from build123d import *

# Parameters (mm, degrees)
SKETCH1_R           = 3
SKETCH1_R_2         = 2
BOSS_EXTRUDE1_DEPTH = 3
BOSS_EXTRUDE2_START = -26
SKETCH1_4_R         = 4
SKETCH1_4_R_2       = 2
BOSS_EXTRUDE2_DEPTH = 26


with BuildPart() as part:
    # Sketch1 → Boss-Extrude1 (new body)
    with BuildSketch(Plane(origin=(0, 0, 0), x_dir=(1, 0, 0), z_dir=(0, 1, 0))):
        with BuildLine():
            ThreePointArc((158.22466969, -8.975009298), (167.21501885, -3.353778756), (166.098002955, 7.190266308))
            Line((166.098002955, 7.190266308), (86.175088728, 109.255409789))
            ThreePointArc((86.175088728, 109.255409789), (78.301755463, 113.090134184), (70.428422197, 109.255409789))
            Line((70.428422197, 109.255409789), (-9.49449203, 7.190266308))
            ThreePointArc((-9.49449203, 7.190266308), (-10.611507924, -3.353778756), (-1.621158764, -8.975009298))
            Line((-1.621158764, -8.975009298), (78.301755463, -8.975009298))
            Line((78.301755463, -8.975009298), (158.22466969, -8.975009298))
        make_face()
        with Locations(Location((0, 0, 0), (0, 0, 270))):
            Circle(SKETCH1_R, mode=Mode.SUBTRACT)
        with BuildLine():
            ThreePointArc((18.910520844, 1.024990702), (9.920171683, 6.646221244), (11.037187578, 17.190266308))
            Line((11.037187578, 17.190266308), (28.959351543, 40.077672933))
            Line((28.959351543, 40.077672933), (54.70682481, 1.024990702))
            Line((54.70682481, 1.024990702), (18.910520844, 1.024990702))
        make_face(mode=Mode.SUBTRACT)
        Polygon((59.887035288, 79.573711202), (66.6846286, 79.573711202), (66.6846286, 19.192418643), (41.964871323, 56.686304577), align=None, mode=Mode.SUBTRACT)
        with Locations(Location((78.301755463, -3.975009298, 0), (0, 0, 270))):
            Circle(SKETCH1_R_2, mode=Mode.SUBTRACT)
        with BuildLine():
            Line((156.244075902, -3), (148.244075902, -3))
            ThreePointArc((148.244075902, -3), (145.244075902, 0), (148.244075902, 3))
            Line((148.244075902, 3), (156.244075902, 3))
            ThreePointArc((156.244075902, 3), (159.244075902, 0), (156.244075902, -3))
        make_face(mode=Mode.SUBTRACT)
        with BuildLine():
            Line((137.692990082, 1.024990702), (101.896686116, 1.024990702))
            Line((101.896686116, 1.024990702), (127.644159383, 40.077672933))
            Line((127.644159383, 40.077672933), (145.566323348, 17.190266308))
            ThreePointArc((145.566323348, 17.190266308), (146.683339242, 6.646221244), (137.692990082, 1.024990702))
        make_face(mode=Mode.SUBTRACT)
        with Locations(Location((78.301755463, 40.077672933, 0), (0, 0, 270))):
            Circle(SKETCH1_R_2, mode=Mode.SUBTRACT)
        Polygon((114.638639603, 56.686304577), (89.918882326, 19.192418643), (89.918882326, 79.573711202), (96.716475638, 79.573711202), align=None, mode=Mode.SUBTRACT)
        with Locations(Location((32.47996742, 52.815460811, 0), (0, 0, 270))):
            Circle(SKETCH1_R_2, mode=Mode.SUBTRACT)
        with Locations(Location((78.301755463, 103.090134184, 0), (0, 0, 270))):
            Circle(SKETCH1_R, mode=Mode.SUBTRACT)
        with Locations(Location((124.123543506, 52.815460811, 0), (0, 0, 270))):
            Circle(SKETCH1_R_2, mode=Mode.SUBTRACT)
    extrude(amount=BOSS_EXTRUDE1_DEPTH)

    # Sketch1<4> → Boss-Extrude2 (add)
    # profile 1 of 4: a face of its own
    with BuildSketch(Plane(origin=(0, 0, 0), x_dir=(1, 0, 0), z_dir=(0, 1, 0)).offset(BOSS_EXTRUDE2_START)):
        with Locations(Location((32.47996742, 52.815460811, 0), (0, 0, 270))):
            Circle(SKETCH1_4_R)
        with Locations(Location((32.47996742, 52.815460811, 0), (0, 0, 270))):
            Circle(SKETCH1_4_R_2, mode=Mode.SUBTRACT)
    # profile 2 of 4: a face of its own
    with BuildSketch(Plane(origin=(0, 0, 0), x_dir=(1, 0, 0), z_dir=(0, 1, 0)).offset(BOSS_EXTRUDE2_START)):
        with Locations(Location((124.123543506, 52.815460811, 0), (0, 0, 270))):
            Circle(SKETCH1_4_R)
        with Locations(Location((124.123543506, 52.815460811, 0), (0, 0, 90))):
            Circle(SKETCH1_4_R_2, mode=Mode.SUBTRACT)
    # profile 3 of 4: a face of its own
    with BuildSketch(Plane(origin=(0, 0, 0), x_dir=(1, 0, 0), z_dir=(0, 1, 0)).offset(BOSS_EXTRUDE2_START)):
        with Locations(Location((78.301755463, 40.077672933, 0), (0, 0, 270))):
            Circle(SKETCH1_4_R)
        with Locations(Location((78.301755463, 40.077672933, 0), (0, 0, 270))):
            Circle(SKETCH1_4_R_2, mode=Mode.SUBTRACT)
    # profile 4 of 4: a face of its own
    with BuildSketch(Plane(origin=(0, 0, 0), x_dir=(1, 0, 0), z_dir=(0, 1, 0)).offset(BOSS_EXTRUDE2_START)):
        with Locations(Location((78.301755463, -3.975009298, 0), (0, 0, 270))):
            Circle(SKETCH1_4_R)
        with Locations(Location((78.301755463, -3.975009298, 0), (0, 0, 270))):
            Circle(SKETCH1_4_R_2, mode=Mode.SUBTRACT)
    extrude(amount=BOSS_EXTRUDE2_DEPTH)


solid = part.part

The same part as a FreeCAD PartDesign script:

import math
import FreeCAD as App
import Part
import Sketcher
from FreeCAD import Vector


def add_polygon(sketch, points):
    """Adds a closed chain of lines whose ends are joined by coincident constraints."""
    first, n = sketch.GeometryCount, len(points)
    for a, b in zip(points, points[1:] + points[:1]):
        sketch.addGeometry(Part.LineSegment(App.Vector(*a, 0), App.Vector(*b, 0)), False)
    for i in range(n):
        sketch.addConstraint(Sketcher.Constraint("Coincident", first + i, 2, first + (i + 1) % n, 1))

doc = App.newDocument("Part")
body = doc.addObject("PartDesign::Body", "Body")

# Sketch on XZ plane
sketch1 = doc.addObject("Sketcher::SketchObject", "Sketch")
body.addObject(sketch1)
sketch1.AttachmentSupport = (doc.XZ_Plane, [""])
sketch1.MapMode = "FlatFace"
sketch1.addGeometry(Part.ArcOfCircle(Part.Circle(Vector(158.2, -1, 0), Vector(0, 0, 1), 10), math.radians(-38), math.radians(90)), False)  # 0
sketch1.addGeometry(Part.LineSegment(Vector(166.1, -7.2, 0), Vector(86.2, -109.3, 0)), False)  # 1
sketch1.addGeometry(Part.ArcOfCircle(Part.Circle(Vector(78.3, -103.1, 0), Vector(0, 0, 1), 10), math.radians(-142), math.radians(-38)), False)  # 2
sketch1.addGeometry(Part.LineSegment(Vector(70.4, -109.3, 0), Vector(-9.5, -7.2, 0)), False)  # 3
sketch1.addGeometry(Part.ArcOfCircle(Part.Circle(Vector(-1.6, -1, 0), Vector(0, 0, 1), 10), math.radians(90), math.radians(218)), False)  # 4
sketch1.addGeometry(Part.LineSegment(Vector(-1.6, 9, 0), Vector(158.2, 9, 0)), False)  # 5
sketch1.addGeometry(Part.Circle(Vector(0, 0, 0), Vector(0, 0, 1), 3), False)  # 6
sketch1.addGeometry(Part.LineSegment(Vector(54.7, -1, 0), Vector(18.9, -1, 0)), False)  # 7
sketch1.addGeometry(Part.ArcOfCircle(Part.Circle(Vector(18.9, -11, 0), Vector(0, 0, 1), 10), math.radians(90), math.radians(218)), False)  # 8
sketch1.addGeometry(Part.LineSegment(Vector(11, -17.2, 0), Vector(29, -40.1, 0)), False)  # 9
sketch1.addGeometry(Part.LineSegment(Vector(29, -40.1, 0), Vector(54.7, -1, 0)), False)  # 10
add_polygon(sketch1, [(42, -56.7), (59.9, -79.6), (66.7, -79.6), (66.7, -19.2)])  # lines 11-14
sketch1.addGeometry(Part.Circle(Vector(78.3, 4, 0), Vector(0, 0, 1), 2), False)  # 15
sketch1.addGeometry(Part.ArcOfCircle(Part.Circle(Vector(156.2, 0, 0), Vector(0, 0, 1), 3), math.radians(-90), math.radians(90)), False)  # 16
sketch1.addGeometry(Part.LineSegment(Vector(156.2, 3, 0), Vector(148.2, 3, 0)), False)  # 17
sketch1.addGeometry(Part.ArcOfCircle(Part.Circle(Vector(148.2, 0, 0), Vector(0, 0, 1), 3), math.radians(90), math.radians(270)), False)  # 18
sketch1.addGeometry(Part.LineSegment(Vector(148.2, -3, 0), Vector(156.2, -3, 0)), False)  # 19
sketch1.addGeometry(Part.ArcOfCircle(Part.Circle(Vector(137.7, -11, 0), Vector(0, 0, 1), 10), math.radians(-38), math.radians(90)), False)  # 20
sketch1.addGeometry(Part.LineSegment(Vector(137.7, -1, 0), Vector(101.9, -1, 0)), False)  # 21
sketch1.addGeometry(Part.LineSegment(Vector(101.9, -1, 0), Vector(127.6, -40.1, 0)), False)  # 22
sketch1.addGeometry(Part.LineSegment(Vector(127.6, -40.1, 0), Vector(145.6, -17.2, 0)), False)  # 23
sketch1.addGeometry(Part.Circle(Vector(78.3, -40.1, 0), Vector(0, 0, 1), 2), False)  # 24
add_polygon(sketch1, [(96.7, -79.6), (114.6, -56.7), (89.9, -19.2), (89.9, -79.6)])  # lines 25-28
sketch1.addGeometry(Part.Circle(Vector(32.5, -52.8, 0), Vector(0, 0, 1), 2), False)  # 29
sketch1.addGeometry(Part.Circle(Vector(124.1, -52.8, 0), Vector(0, 0, 1), 2), False)  # 30
sketch1.addGeometry(Part.Circle(Vector(78.3, -103.1, 0), Vector(0, 0, 1), 3), False)  # 31
sketch1.addConstraint(Sketcher.Constraint("Tangent", 0, 1, 1, 1))
sketch1.addConstraint(Sketcher.Constraint("Tangent", 1, 2, 2, 2))
sketch1.addConstraint(Sketcher.Constraint("Tangent", 2, 1, 3, 1))
sketch1.addConstraint(Sketcher.Constraint("Tangent", 3, 2, 4, 2))
sketch1.addConstraint(Sketcher.Constraint("Tangent", 4, 1, 5, 1))
sketch1.addConstraint(Sketcher.Constraint("Tangent", 5, 2, 0, 2))
sketch1.addConstraint(Sketcher.Constraint("Tangent", 7, 2, 8, 1))
sketch1.addConstraint(Sketcher.Constraint("Tangent", 8, 2, 9, 1))
sketch1.addConstraint(Sketcher.Constraint("Coincident", 9, 2, 10, 1))
sketch1.addConstraint(Sketcher.Constraint("Coincident", 10, 2, 7, 1))
sketch1.addConstraint(Sketcher.Constraint("Tangent", 16, 2, 17, 1))
sketch1.addConstraint(Sketcher.Constraint("Tangent", 17, 2, 18, 1))
sketch1.addConstraint(Sketcher.Constraint("Tangent", 18, 2, 19, 1))
sketch1.addConstraint(Sketcher.Constraint("Tangent", 19, 2, 16, 1))
sketch1.addConstraint(Sketcher.Constraint("Tangent", 20, 2, 21, 1))
sketch1.addConstraint(Sketcher.Constraint("Coincident", 21, 2, 22, 1))
sketch1.addConstraint(Sketcher.Constraint("Coincident", 22, 2, 23, 1))
sketch1.addConstraint(Sketcher.Constraint("Tangent", 23, 2, 20, 1))
sketch1.addConstraint(Sketcher.Constraint("Horizontal", 5))
sketch1.addConstraint(Sketcher.Constraint("Horizontal", 7))
sketch1.addConstraint(Sketcher.Constraint("Horizontal", 12))
sketch1.addConstraint(Sketcher.Constraint("Vertical", 13))
sketch1.addConstraint(Sketcher.Constraint("Horizontal", 17))
sketch1.addConstraint(Sketcher.Constraint("Horizontal", 19))
sketch1.addConstraint(Sketcher.Constraint("Horizontal", 21))
sketch1.addConstraint(Sketcher.Constraint("Vertical", 27))
sketch1.addConstraint(Sketcher.Constraint("Horizontal", 28))
sketch1.addConstraint(Sketcher.Constraint("Coincident", 6, 3, -1, 1))
sketch1.addConstraint(Sketcher.Constraint("Coincident", 31, 3, 2, 3))
sketch1.addConstraint(Sketcher.Constraint("Equal", 0, 2))
sketch1.addConstraint(Sketcher.Constraint("Equal", 2, 4))
sketch1.addConstraint(Sketcher.Constraint("Equal", 4, 8))
sketch1.addConstraint(Sketcher.Constraint("Equal", 6, 16))
sketch1.addConstraint(Sketcher.Constraint("Equal", 8, 20))
sketch1.addConstraint(Sketcher.Constraint("Equal", 15, 24))
sketch1.addConstraint(Sketcher.Constraint("Equal", 24, 29))
sketch1.addConstraint(Sketcher.Constraint("Equal", 29, 30))
sketch1.addConstraint(Sketcher.Constraint("Equal", 18, 31))
sketch1.addConstraint(Sketcher.Constraint("PointOnObject", 16, 3, -1))
sketch1.addConstraint(Sketcher.Constraint("Parallel", 3, 9))
sketch1.addConstraint(Sketcher.Constraint("Parallel", 9, 11))
sketch1.addConstraint(Sketcher.Constraint("Parallel", 10, 14))
sketch1.addConstraint(Sketcher.Constraint("Parallel", 1, 23))
sketch1.addConstraint(Sketcher.Constraint("Parallel", 23, 25))
sketch1.addConstraint(Sketcher.Constraint("Parallel", 22, 26))
sketch1.addConstraint(Sketcher.Constraint("Horizontal", 8, 3, 20, 3))
sketch1.addConstraint(Sketcher.Constraint("Horizontal", 29, 3, 30, 3))
sketch1.addConstraint(Sketcher.Constraint("Horizontal", 1, 2, 2, 1))
sketch1.addConstraint(Sketcher.Constraint("Horizontal", 4, 3, 7, 2))
sketch1.addConstraint(Sketcher.Constraint("Horizontal", 24, 3, 9, 2))
sketch1.addConstraint(Sketcher.Constraint("Horizontal", 9, 2, 22, 2))
sketch1.addConstraint(Sketcher.Constraint("Horizontal", 14, 2, 25, 2))
sketch1.addConstraint(Sketcher.Constraint("Horizontal", 13, 2, 26, 2))
sketch1.addConstraint(Sketcher.Constraint("Horizontal", 12, 2, 27, 2))
sketch1.addConstraint(Sketcher.Constraint("Vertical", 2, 3, 15, 3))
sketch1.addConstraint(Sketcher.Constraint("Vertical", 15, 3, 24, 3))
sketch1.addConstraint(Sketcher.Constraint("Equal", 7, 21))
sketch1.addConstraint(Sketcher.Constraint("Equal", 9, 11))
sketch1.addConstraint(Sketcher.Constraint("Diameter", 6, 6.0))
sketch1.addConstraint(Sketcher.Constraint("Diameter", 15, 4.0))
sketch1.addConstraint(Sketcher.Constraint("Radius", 0, 10.0))
sketch1.addConstraint(Sketcher.Constraint("DistanceX", 17, 2, 17, 1, 8.0))
sketch1.addConstraint(Sketcher.Constraint("DistanceY", 8, 3, 15, 3, 15.0))
sketch1.addConstraint(Sketcher.Constraint("DistanceX", 5, 1, 5, 2, 159.845828))
sketch1.addConstraint(Sketcher.Constraint("DistanceY", 2, 1, 11, 2, 29.681699))
sketch1.addConstraint(Sketcher.Constraint("Distance", 1, 129.633968))
sketch1.addConstraint(Sketcher.Constraint("Distance", 14, 44.909441))
sketch1.addConstraint(Sketcher.Constraint("DistanceX", 7, 2, 7, 1, 35.796304))
sketch1.addConstraint(Sketcher.Constraint("DistanceX", 12, 1, 12, 2, 6.797593))
sketch1.addConstraint(Sketcher.Constraint("DistanceX", -1, 1, 0, 3, 158.22467))
sketch1.addConstraint(Sketcher.Constraint("DistanceY", 0, 3, -1, 1, 1.024991))
sketch1.addConstraint(Sketcher.Constraint("DistanceX", -1, 1, 8, 3, 18.910521))
sketch1.addConstraint(Sketcher.Constraint("DistanceX", -1, 1, 20, 3, 137.69299))
sketch1.addConstraint(Sketcher.Constraint("DistanceY", 29, 3, -1, 1, 52.815461))
sketch1.addConstraint(Sketcher.Constraint("DistanceX", -1, 1, 12, 2, 66.684629))
sketch1.addConstraint(Sketcher.Constraint("DistanceX", -1, 1, 25, 2, 114.63864))
sketch1.addConstraint(Sketcher.Constraint("DistanceX", 15, 3, 16, 3, 77.94232))
sketch1.addConstraint(Sketcher.Constraint("DistanceX", 29, 3, 24, 3, 45.821788))
sketch1.addConstraint(Sketcher.Constraint("DistanceX", 24, 3, 30, 3, 45.821788))
pad1 = doc.addObject("PartDesign::Pad", "Pad")
body.addObject(pad1)
pad1.Profile = sketch1
pad1.Length = 3
pad1.Reversed = True

# Sketch on XZ plane
sketch2 = doc.addObject("Sketcher::SketchObject", "Sketch001")
body.addObject(sketch2)
sketch2.AttachmentSupport = (doc.XZ_Plane, [""])
sketch2.MapMode = "FlatFace"
sketch2.AttachmentOffset = App.Placement(Vector(0, 0, 26), App.Rotation())
sketch2.addGeometry(Part.Circle(Vector(32.5, -52.8, 0), Vector(0, 0, 1), 4), False)
sketch2.addGeometry(Part.Circle(Vector(32.5, -52.8, 0), Vector(0, 0, 1), 2), False)
sketch2.addGeometry(Part.Circle(Vector(124.1, -52.8, 0), Vector(0, 0, 1), 4), False)
sketch2.addGeometry(Part.Circle(Vector(124.1, -52.8, 0), Vector(0, 0, 1), 2), False)
sketch2.addGeometry(Part.Circle(Vector(78.3, -40.1, 0), Vector(0, 0, 1), 4), False)
sketch2.addGeometry(Part.Circle(Vector(78.3, -40.1, 0), Vector(0, 0, 1), 2), False)
sketch2.addGeometry(Part.Circle(Vector(78.3, 4, 0), Vector(0, 0, 1), 4), False)
sketch2.addGeometry(Part.Circle(Vector(78.3, 4, 0), Vector(0, 0, 1), 2), False)
sketch2.addConstraint(Sketcher.Constraint("Coincident", 1, 3, 0, 3))
sketch2.addConstraint(Sketcher.Constraint("Coincident", 3, 3, 2, 3))
sketch2.addConstraint(Sketcher.Constraint("Coincident", 5, 3, 4, 3))
sketch2.addConstraint(Sketcher.Constraint("Coincident", 7, 3, 6, 3))
sketch2.addConstraint(Sketcher.Constraint("Equal", 0, 2))
sketch2.addConstraint(Sketcher.Constraint("Equal", 1, 3))
sketch2.addConstraint(Sketcher.Constraint("Equal", 2, 4))
sketch2.addConstraint(Sketcher.Constraint("Equal", 3, 5))
sketch2.addConstraint(Sketcher.Constraint("Equal", 4, 6))
sketch2.addConstraint(Sketcher.Constraint("Equal", 5, 7))
sketch2.addConstraint(Sketcher.Constraint("Horizontal", 1, 3, 2, 3))
sketch2.addConstraint(Sketcher.Constraint("Vertical", 5, 3, 6, 3))
sketch2.addConstraint(Sketcher.Constraint("Diameter", 0, 8.0))
sketch2.addConstraint(Sketcher.Constraint("Diameter", 1, 4.0))
sketch2.addConstraint(Sketcher.Constraint("DistanceY", 0, 3, -1, 1, 52.815461))
sketch2.addConstraint(Sketcher.Constraint("DistanceY", -1, 1, 6, 3, 3.975009))
sketch2.addConstraint(Sketcher.Constraint("DistanceX", 4, 3, 2, 3, 45.821788))
sketch2.addConstraint(Sketcher.Constraint("DistanceX", 0, 3, 4, 3, 45.821788))
sketch2.addConstraint(Sketcher.Constraint("DistanceX", -1, 1, 0, 3, 32.479967))
sketch2.addConstraint(Sketcher.Constraint("DistanceY", 4, 3, -1, 1, 40.077673))
pad2 = doc.addObject("PartDesign::Pad", "Pad001")
body.addObject(pad2)
pad2.Profile = sketch2
pad2.Length = 26
pad2.Reversed = True

doc.recompute()
